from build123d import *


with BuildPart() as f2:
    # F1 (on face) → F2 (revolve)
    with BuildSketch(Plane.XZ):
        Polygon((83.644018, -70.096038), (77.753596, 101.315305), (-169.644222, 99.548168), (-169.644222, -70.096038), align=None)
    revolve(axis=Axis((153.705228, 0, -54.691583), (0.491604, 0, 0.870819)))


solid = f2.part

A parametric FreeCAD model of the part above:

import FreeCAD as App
import Part
import Sketcher

doc = App.newDocument("Part")
params = doc.addObject("Spreadsheet::Sheet", "Params")
for row, (alias, value) in enumerate([
    ("revolution_angle", "360 deg"),
], start=1):
    params.set(f"A{row}", alias)
    params.set(f"B{row}", "=" + value)
    params.setAlias(f"B{row}", alias)

body = doc.addObject("PartDesign::Body", "Body")

# Sketch on XZ plane
sketch1 = doc.addObject("Sketcher::SketchObject", "Sketch")
body.addObject(sketch1)
sketch1.AttachmentSupport = (doc.XZ_Plane, [""])
sketch1.MapMode = "FlatFace"
sketch1.addGeometry(Part.LineSegment(App.Vector(83.644018, -70.096038, 0), App.Vector(77.753596, 101.315305, 0)), False)
sketch1.addGeometry(Part.LineSegment(App.Vector(77.753596, 101.315305, 0), App.Vector(-169.644222, 99.548168, 0)), False)
sketch1.addGeometry(Part.LineSegment(App.Vector(-169.644222, 99.548168, 0), App.Vector(-169.644222, -70.096038, 0)), False)
sketch1.addGeometry(Part.LineSegment(App.Vector(-169.644222, -70.096038, 0), App.Vector(83.644018, -70.096038, 0)), False)
sketch1.addGeometry(Part.LineSegment(App.Vector(68.965315, -204.79843, 0), App.Vector(202.135898, 31.097686, 0)), True)  # axis
sketch1.addConstraint(Sketcher.Constraint("Coincident", 0, 2, 1, 1))
sketch1.addConstraint(Sketcher.Constraint("Coincident", 1, 2, 2, 1))
sketch1.addConstraint(Sketcher.Constraint("Coincident", 2, 2, 3, 1))
sketch1.addConstraint(Sketcher.Constraint("Coincident", 3, 2, 0, 1))
sketch1.addConstraint(Sketcher.Constraint("Vertical", 2))
sketch1.addConstraint(Sketcher.Constraint("Horizontal", 3))
sketch1.addConstraint(Sketcher.Constraint("DistanceX", 3, 1, 3, 2, 253.28824))
sketch1.addConstraint(Sketcher.Constraint("DistanceY", 4, 1, 1, 2, 304.346598))
sketch1.addConstraint(Sketcher.Constraint("DistanceX", 0, 2, 4, 2, 124.382302))
sketch1.addConstraint(Sketcher.Constraint("Distance", 1, 247.404129))
sketch1.addConstraint(Sketcher.Constraint("Distance", 4, 270.889981))
sketch1.addConstraint(Sketcher.Constraint("DistanceY", 2, 2, 2, 1, 169.644206))
sketch1.addConstraint(Sketcher.Constraint("DistanceY", -1, 1, 1, 2, 99.548168))
sketch1.addConstraint(Sketcher.Constraint("DistanceX", -1, 1, 3, 2, 83.644018))
sketch1.addConstraint(Sketcher.Constraint("DistanceX", 1, 2, 0, 2, 247.397818))
sketch1.addConstraint(Sketcher.Constraint("DistanceX", 4, 1, 0, 2, 8.788281))
revolution = doc.addObject("PartDesign::Revolution", "Revolution")
body.addObject(revolution)
revolution.Profile = sketch1
revolution.ReferenceAxis = (sketch1, ["Axis0"])
revolution.setExpression("Angle", "Params.revolution_angle")

doc.recompute()
